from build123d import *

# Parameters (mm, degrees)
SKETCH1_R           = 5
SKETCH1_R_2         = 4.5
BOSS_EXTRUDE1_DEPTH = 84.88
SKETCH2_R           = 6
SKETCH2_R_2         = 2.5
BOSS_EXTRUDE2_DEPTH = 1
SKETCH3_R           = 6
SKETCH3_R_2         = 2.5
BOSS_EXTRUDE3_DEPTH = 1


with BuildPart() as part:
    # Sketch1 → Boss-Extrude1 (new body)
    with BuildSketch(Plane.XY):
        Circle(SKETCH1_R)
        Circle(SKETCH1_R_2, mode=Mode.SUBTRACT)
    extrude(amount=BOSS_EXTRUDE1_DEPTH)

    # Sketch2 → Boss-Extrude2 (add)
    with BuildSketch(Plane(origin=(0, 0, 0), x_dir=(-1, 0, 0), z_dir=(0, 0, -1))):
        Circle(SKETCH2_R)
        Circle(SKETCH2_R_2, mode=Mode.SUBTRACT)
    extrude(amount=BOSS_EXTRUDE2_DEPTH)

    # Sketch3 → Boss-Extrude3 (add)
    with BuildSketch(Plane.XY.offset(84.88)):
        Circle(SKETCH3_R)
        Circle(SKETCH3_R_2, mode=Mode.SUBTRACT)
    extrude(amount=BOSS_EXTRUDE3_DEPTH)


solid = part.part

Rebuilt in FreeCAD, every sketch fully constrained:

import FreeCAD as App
import Part
import Sketcher

V = App.Vector

doc = App.newDocument("Part")
params = doc.addObject("Spreadsheet::Sheet", "Params")
for row, (alias, value) in enumerate([
    ("sketch1_diameter", "10 mm"),
    ("sketch1_diameter2", "9 mm"),
    ("pad1_length", "84.88 mm"),
    ("sketch2_diameter", "12 mm"),
    ("sketch2_diameter2", "5 mm"),
    ("pad2_length", "1 mm"),
    ("sketch3_diameter", "12 mm"),
    ("sketch3_diameter2", "5 mm"),
    ("pad3_length", "1 mm"),
], start=1):
    params.set(f"A{row}", alias)
    params.set(f"B{row}", "=" + value)
    params.setAlias(f"B{row}", alias)

body = doc.addObject("PartDesign::Body", "Body")

# Sketch on XY plane
sketch1 = doc.addObject("Sketcher::SketchObject", "Sketch")
body.addObject(sketch1)
sketch1.AttachmentSupport = (doc.XY_Plane, [""])
sketch1.MapMode = "FlatFace"
sketch1.addGeometry([
    Part.Circle(V(0, 0, 0), V(0, 0, 1), 5),
    Part.Circle(V(0, 0, 0), V(0, 0, 1), 4.5),
], False)
sketch1.addConstraint([
    Sketcher.Constraint("Coincident", 0, 3, -1, 1),
    Sketcher.Constraint("Coincident", 1, 3, -1, 1),
    Sketcher.Constraint("Diameter", 0, 10.0),
    Sketcher.Constraint("Diameter", 1, 9.0),
])
sketch1.setExpression("Constraints[2]", "Params.sketch1_diameter")
sketch1.setExpression("Constraints[3]", "Params.sketch1_diameter2")
pad1 = doc.addObject("PartDesign::Pad", "Pad")
body.addObject(pad1)
pad1.Profile = sketch1
pad1.setExpression("Length", "Params.pad1_length")

# Sketch on XY plane
sketch2 = doc.addObject("Sketcher::SketchObject", "Sketch001")
body.addObject(sketch2)
sketch2.AttachmentSupport = (doc.XY_Plane, [""])
sketch2.MapMode = "FlatFace"
sketch2.addGeometry([
    Part.Circle(V(0, 0, 0), V(0, 0, 1), 6),
    Part.Circle(V(0, 0, 0), V(0, 0, 1), 2.5),
], False)
sketch2.addConstraint([
    Sketcher.Constraint("Coincident", 0, 3, -1, 1),
    Sketcher.Constraint("Coincident", 1, 3, -1, 1),
    Sketcher.Constraint("Diameter", 0, 12.0),
    Sketcher.Constraint("Diameter", 1, 5.0),
])
sketch2.setExpression("Constraints[2]", "Params.sketch2_diameter")
sketch2.setExpression("Constraints[3]", "Params.sketch2_diameter2")
pad2 = doc.addObject("PartDesign::Pad", "Pad001")
body.addObject(pad2)
pad2.Profile = sketch2
pad2.setExpression("Length", "Params.pad2_length")
pad2.Reversed = True

# Sketch on XY plane
sketch3 = doc.addObject("Sketcher::SketchObject", "Sketch002")
body.addObject(sketch3)
sketch3.AttachmentSupport = (doc.XY_Plane, [""])
sketch3.MapMode = "FlatFace"
sketch3.AttachmentOffset = App.Placement(V(0, 0, 84.88), App.Rotation())
sketch3.addGeometry([
    Part.Circle(V(0, 0, 0), V(0, 0, 1), 6),
    Part.Circle(V(0, 0, 0), V(0, 0, 1), 2.5),
], False)
sketch3.addConstraint([
    Sketcher.Constraint("Coincident", 0, 3, -1, 1),
    Sketcher.Constraint("Coincident", 1, 3, -1, 1),
    Sketcher.Constraint("Diameter", 0, 12.0),
    Sketcher.Constraint("Diameter", 1, 5.0),
])
sketch3.setExpression("Constraints[2]", "Params.sketch3_diameter")
sketch3.setExpression("Constraints[3]", "Params.sketch3_diameter2")
pad3 = doc.addObject("PartDesign::Pad", "Pad002")
body.addObject(pad3)
pad3.Profile = sketch3
pad3.setExpression("Length", "Params.pad3_length")

doc.recompute()
